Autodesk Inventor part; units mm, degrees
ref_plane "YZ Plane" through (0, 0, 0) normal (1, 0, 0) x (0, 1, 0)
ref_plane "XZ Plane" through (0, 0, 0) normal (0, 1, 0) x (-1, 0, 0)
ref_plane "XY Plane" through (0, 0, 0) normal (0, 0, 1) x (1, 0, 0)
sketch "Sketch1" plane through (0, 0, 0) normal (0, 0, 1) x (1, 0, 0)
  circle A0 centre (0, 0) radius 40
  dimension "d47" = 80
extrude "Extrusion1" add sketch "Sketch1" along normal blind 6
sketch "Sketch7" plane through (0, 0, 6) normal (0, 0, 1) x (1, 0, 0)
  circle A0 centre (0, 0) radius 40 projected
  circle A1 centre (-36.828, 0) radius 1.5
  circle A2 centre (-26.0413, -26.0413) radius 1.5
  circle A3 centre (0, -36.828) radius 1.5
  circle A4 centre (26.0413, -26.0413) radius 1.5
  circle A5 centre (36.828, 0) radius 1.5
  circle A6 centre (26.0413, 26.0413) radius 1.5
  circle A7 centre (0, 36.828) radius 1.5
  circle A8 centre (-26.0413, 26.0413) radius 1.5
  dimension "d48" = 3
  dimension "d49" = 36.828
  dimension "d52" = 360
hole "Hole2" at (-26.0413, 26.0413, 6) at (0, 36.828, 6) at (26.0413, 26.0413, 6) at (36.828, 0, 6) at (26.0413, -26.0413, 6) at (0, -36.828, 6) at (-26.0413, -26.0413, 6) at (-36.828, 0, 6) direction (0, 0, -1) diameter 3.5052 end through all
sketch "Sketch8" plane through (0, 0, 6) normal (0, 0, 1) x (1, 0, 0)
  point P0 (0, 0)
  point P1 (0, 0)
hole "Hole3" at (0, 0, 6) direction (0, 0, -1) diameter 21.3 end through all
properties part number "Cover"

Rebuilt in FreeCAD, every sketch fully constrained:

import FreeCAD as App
import Part
import Sketcher
Q = App.Units.Quantity

doc = App.newDocument("Part")
body = doc.addObject("PartDesign::Body", "Body")

sketch1 = body.newObject("Sketcher::SketchObject", "Sketch")
sketch1.AttachmentSupport = (doc.getObject("XY_Plane"), [""])
sketch1.MapMode = "FlatFace"
sketch1.addGeometry(Part.Circle(App.Vector(0, 0, 0), App.Vector(0, 0, 1), 40), False)
sketch1.addConstraint([
    Sketcher.Constraint("Coincident", 0, 3, -1, 1),
    Sketcher.Constraint("Diameter", 0, Q("80 mm")),
])
pad1 = body.newObject("PartDesign::Pad", "Pad")
pad1.Profile = sketch1
pad1.Length = 6

sketch2 = body.newObject("Sketcher::SketchObject", "Sketch001")
sketch2.AttachmentSupport = (doc.getObject("XY_Plane"), [""])
sketch2.MapMode = "FlatFace"
sketch2.AttachmentOffset = App.Placement(App.Vector(0, 0, 6), App.Rotation())
sketch2.addGeometry([
    Part.Circle(App.Vector(-26.0413, 26.0413, 0), App.Vector(0, 0, 1), 1.7526),
    Part.Circle(App.Vector(0, 36.828, 0), App.Vector(0, 0, 1), 1.7526),
    Part.Circle(App.Vector(26.0413, 26.0413, 0), App.Vector(0, 0, 1), 1.7526),
    Part.Circle(App.Vector(36.828, 0, 0), App.Vector(0, 0, 1), 1.7526),
    Part.Circle(App.Vector(26.0413, -26.0413, 0), App.Vector(0, 0, 1), 1.7526),
    Part.Circle(App.Vector(0, -36.828, 0), App.Vector(0, 0, 1), 1.7526),
    Part.Circle(App.Vector(-26.0413, -26.0413, 0), App.Vector(0, 0, 1), 1.7526),
    Part.Circle(App.Vector(-36.828, 0, 0), App.Vector(0, 0, 1), 1.7526),
], False)
sketch2.addConstraint([
    Sketcher.Constraint("Equal", 0, 1),
    Sketcher.Constraint("Equal", 1, 2),
    Sketcher.Constraint("Equal", 2, 3),
    Sketcher.Constraint("Equal", 3, 4),
    Sketcher.Constraint("Equal", 4, 5),
    Sketcher.Constraint("Equal", 5, 6),
    Sketcher.Constraint("Equal", 6, 7),
    Sketcher.Constraint("Symmetric", 0, 3, 4, 3, -1, 1),
    Sketcher.Constraint("Symmetric", 1, 3, 5, 3, -1, 1),
    Sketcher.Constraint("Symmetric", 2, 3, 6, 3, -1, 1),
    Sketcher.Constraint("Symmetric", 3, 3, 7, 3, -1, 1),
    Sketcher.Constraint("Symmetric", 0, 3, 2, 3, -2),
    Sketcher.Constraint("PointOnObject", 1, 3, -2),
    Sketcher.Constraint("PointOnObject", 3, 3, -1),
    Sketcher.Constraint("Diameter", 0, Q("3.5052 mm")),
    Sketcher.Constraint("DistanceY", -1, 1, 1, 3, Q("36.828 mm")),
    Sketcher.Constraint("DistanceX", -1, 1, 3, 3, Q("36.828 mm")),
    Sketcher.Constraint("DistanceX", 0, 3, -1, 1, Q("26.0413 mm")),
    Sketcher.Constraint("DistanceY", -1, 1, 0, 3, Q("26.0413 mm")),
])
doc.recompute()
hole = body.newObject("PartDesign::Hole", "Hole")
hole.Profile = sketch2
hole.ThreadType = "None"
hole.Diameter = 3.5052
hole.DepthType = "ThroughAll"

sketch3 = body.newObject("Sketcher::SketchObject", "Sketch002")
sketch3.AttachmentSupport = (doc.getObject("XY_Plane"), [""])
sketch3.MapMode = "FlatFace"
sketch3.AttachmentOffset = App.Placement(App.Vector(0, 0, 6), App.Rotation())
sketch3.addGeometry(Part.Circle(App.Vector(0, 0, 0), App.Vector(0, 0, 1), 10.65), False)
sketch3.addConstraint([
    Sketcher.Constraint("Coincident", 0, 3, -1, 1),
    Sketcher.Constraint("Diameter", 0, Q("21.3 mm")),
])
doc.recompute()
hole2 = body.newObject("PartDesign::Hole", "Hole001")
hole2.Profile = sketch3
hole2.ThreadType = "None"
hole2.Diameter = 21.3
hole2.DepthType = "ThroughAll"

doc.recompute()
